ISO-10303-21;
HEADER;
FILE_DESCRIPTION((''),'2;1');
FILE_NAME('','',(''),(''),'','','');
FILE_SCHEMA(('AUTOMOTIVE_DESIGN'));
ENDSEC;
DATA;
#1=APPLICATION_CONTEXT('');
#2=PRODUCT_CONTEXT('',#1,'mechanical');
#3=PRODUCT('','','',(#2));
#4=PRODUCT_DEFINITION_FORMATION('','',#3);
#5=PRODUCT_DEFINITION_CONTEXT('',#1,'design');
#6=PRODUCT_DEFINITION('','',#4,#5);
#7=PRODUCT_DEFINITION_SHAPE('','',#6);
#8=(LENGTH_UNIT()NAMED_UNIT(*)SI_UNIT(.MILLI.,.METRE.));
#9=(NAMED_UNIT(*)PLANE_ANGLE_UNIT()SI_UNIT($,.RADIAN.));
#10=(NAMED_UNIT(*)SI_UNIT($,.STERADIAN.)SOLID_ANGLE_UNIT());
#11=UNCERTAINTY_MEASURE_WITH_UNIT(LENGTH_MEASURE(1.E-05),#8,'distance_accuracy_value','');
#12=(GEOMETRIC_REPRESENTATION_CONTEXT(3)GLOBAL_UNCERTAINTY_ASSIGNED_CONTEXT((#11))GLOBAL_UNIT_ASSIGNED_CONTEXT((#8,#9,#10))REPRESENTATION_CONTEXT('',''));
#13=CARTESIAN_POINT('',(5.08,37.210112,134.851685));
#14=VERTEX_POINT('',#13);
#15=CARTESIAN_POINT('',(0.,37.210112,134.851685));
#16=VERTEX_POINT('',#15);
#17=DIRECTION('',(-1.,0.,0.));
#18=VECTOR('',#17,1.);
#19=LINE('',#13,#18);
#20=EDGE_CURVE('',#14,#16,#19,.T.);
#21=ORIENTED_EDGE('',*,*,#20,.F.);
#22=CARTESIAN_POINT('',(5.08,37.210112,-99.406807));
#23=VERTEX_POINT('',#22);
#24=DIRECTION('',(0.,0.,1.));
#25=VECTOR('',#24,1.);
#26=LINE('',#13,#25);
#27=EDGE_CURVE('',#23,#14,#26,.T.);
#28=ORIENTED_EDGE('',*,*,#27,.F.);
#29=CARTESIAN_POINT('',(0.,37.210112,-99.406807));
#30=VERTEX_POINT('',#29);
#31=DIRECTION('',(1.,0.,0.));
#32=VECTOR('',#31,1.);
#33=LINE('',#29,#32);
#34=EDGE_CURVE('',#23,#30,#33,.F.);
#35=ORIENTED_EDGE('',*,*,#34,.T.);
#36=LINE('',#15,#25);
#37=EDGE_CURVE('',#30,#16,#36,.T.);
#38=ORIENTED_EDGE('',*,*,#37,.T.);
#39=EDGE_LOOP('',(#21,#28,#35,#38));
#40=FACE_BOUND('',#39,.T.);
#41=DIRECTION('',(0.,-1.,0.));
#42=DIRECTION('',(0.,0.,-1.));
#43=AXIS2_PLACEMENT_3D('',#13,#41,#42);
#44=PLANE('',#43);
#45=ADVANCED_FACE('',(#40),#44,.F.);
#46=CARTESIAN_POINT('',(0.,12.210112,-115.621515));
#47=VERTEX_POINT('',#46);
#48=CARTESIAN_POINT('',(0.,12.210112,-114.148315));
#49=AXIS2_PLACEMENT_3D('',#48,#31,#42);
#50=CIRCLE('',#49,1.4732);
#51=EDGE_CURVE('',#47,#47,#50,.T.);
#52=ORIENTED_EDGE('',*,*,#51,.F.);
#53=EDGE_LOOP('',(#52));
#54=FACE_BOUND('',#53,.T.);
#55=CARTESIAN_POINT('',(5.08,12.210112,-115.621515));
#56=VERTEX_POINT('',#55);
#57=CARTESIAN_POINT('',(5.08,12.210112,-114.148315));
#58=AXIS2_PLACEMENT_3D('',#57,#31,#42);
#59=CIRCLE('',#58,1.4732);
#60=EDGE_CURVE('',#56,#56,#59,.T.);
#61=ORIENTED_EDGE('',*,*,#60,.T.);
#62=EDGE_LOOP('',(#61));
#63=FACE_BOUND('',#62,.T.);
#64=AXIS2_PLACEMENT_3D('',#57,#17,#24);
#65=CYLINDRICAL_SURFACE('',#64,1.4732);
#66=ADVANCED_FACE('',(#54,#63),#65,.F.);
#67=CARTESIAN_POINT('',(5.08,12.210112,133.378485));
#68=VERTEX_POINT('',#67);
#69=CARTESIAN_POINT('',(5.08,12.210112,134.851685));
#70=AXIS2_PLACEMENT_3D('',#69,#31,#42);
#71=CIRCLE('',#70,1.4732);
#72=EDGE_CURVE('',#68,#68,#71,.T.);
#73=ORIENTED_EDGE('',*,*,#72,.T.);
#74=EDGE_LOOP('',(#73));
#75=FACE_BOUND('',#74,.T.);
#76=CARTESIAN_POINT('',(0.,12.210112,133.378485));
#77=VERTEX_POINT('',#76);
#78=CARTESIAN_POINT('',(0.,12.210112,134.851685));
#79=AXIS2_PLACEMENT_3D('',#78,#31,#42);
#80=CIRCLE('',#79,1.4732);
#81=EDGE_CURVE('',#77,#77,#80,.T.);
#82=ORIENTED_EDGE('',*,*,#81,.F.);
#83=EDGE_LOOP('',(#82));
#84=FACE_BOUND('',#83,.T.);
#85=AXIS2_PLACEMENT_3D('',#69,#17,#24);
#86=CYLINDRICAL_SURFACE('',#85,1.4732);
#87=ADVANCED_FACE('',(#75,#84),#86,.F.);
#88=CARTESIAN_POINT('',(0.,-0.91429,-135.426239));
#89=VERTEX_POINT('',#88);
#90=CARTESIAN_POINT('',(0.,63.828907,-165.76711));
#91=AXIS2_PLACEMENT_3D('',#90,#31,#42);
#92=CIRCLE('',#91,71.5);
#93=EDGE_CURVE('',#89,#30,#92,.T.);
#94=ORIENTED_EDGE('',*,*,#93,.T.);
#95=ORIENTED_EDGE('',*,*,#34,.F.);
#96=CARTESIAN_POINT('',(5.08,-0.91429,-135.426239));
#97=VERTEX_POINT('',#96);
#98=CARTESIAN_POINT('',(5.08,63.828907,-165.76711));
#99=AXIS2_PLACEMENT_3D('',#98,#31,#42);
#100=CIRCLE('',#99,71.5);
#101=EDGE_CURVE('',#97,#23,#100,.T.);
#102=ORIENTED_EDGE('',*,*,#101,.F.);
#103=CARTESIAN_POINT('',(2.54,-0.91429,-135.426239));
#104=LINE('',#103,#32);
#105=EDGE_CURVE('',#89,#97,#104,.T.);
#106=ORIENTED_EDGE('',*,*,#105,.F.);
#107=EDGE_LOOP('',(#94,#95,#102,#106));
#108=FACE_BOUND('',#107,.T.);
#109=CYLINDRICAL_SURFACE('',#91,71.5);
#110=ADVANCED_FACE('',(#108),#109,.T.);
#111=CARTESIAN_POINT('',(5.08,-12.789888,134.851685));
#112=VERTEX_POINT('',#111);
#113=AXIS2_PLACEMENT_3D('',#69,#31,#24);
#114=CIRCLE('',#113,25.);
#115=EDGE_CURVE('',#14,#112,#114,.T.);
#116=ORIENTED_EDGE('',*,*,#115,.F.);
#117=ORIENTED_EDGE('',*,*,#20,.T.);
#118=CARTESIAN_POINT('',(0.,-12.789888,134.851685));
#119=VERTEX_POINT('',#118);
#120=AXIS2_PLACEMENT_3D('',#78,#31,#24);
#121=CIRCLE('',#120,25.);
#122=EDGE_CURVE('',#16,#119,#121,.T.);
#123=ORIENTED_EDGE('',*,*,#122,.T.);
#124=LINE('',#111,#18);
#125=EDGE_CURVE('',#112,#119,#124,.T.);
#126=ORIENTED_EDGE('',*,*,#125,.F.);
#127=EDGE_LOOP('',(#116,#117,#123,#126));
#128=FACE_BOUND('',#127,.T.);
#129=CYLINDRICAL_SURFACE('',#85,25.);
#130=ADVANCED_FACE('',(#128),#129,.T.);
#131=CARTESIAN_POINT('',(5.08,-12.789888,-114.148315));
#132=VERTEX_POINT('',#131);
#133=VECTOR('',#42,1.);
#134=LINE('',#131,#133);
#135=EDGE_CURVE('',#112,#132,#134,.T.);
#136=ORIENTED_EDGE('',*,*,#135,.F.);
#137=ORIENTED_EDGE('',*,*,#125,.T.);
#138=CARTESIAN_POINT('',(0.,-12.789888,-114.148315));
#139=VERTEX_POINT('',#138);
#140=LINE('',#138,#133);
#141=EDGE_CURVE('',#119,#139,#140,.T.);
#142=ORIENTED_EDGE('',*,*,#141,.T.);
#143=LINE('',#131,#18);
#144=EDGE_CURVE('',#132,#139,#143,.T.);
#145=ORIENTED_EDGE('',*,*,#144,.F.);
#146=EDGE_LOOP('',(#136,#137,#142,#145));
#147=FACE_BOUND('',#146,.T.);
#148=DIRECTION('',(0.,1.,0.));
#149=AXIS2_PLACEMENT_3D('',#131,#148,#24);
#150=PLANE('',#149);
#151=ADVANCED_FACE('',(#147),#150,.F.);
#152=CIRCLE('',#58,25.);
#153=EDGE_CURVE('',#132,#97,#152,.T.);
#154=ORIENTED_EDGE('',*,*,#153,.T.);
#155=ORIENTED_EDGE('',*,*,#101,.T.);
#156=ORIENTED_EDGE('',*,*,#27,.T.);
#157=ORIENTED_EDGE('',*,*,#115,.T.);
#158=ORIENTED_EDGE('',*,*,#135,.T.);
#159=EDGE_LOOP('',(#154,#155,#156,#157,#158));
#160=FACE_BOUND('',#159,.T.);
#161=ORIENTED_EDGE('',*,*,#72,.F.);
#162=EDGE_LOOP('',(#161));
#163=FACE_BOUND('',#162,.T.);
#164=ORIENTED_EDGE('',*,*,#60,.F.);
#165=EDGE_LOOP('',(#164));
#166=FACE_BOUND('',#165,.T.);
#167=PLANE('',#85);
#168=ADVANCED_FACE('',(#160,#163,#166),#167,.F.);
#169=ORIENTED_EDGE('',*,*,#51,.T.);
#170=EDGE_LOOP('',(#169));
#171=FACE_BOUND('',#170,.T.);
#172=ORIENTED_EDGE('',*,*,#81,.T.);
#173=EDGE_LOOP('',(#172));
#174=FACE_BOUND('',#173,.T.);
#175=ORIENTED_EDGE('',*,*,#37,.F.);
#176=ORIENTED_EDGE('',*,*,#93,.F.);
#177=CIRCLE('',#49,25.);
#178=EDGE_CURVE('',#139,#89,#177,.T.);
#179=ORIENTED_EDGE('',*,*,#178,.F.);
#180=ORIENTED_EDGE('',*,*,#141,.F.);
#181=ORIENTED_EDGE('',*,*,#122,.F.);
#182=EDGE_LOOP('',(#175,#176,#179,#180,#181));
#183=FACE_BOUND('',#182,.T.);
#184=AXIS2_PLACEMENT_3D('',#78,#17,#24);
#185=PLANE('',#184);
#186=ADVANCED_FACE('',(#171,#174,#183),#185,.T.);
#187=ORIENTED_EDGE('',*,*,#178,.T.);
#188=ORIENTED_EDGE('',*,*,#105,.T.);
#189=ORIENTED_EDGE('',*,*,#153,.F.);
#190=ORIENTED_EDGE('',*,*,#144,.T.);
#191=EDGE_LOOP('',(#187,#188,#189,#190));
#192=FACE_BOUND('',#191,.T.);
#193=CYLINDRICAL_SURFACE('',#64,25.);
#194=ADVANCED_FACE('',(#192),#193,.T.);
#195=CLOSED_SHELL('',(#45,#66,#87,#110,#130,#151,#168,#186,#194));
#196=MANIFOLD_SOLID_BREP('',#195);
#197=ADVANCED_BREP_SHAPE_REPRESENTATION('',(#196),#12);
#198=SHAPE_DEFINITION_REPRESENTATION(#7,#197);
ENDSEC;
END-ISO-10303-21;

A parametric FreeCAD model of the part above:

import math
import FreeCAD as App
import Part
import Sketcher

V = App.Vector
Q = App.Units.Quantity

doc = App.newDocument("Part")
body = doc.addObject("PartDesign::Body", "Body")

sketch1 = body.newObject("Sketcher::SketchObject", "Sketch")
sketch1.AttachmentSupport = (doc.getObject("YZ_Plane"), [""])
sketch1.MapMode = "FlatFace"
sketch1.addGeometry([
    Part.LineSegment(V(37.210112, -114.148315, 0), V(37.210112, 134.851685, 0)),
    Part.ArcOfCircle(Part.Circle(V(12.210112, 134.851685, 0), V(0, 0, 1), 25), math.radians(0), math.radians(180)),
    Part.LineSegment(V(-12.789888, 134.851685, 0), V(-12.789888, -114.148315, 0)),
    Part.ArcOfCircle(Part.Circle(V(12.210112, -114.148315, 0), V(0, 0, 1), 25), math.radians(180), math.radians(360)),
    Part.Circle(V(12.210112, -114.148315, 0), V(0, 0, 1), 1.4732),
    Part.Circle(V(12.210112, 134.851685, 0), V(0, 0, 1), 1.4732),
], False)
sketch1.addConstraint([
    Sketcher.Constraint("Tangent", 0, 2, 1, 1),
    Sketcher.Constraint("Tangent", 1, 2, 2, 1),
    Sketcher.Constraint("Tangent", 2, 2, 3, 1),
    Sketcher.Constraint("Tangent", 3, 2, 0, 1),
    Sketcher.Constraint("Vertical", 0),
    Sketcher.Constraint("Vertical", 2),
    Sketcher.Constraint("Coincident", 4, 3, 3, 3),
    Sketcher.Constraint("Coincident", 5, 3, 1, 3),
    Sketcher.Constraint("Equal", 4, 5),
    Sketcher.Constraint("Radius", 1, Q("25 mm")),
    Sketcher.Constraint("DistanceY", 0, 1, 0, 2, Q("249 mm")),
    Sketcher.Constraint("Diameter", 4, Q("2.9464 mm")),
    Sketcher.Constraint("DistanceX", -1, 1, 1, 3, Q("12.210112 mm")),
    Sketcher.Constraint("DistanceY", -1, 1, 1, 3, Q("134.851685 mm")),
])
pad1 = body.newObject("PartDesign::Pad", "Pad")
pad1.Profile = sketch1
pad1.Length = 5.08

sketch2 = body.newObject("Sketcher::SketchObject", "Sketch001")
sketch2.AttachmentSupport = (doc.getObject("YZ_Plane"), [""])
sketch2.MapMode = "FlatFace"
sketch2.AttachmentOffset = App.Placement(V(0, 0, 5.08), App.Rotation())
sketch2.addGeometry(Part.Circle(V(63.828907, -165.76711, 0), V(0, 0, 1), 71.5), False)
sketch2.addConstraint([
    Sketcher.Constraint("Diameter", 0, Q("143 mm")),
    Sketcher.Constraint("DistanceY", 0, 3, -1, 1, Q("165.76711 mm")),
    Sketcher.Constraint("DistanceX", -1, 1, 0, 3, Q("63.828907 mm")),
])
pad2 = body.newObject("PartDesign::Pad", "Pad001")
pad2.Profile = sketch2
pad2.Length = 5.08
pad2.Reversed = True

doc.recompute()
